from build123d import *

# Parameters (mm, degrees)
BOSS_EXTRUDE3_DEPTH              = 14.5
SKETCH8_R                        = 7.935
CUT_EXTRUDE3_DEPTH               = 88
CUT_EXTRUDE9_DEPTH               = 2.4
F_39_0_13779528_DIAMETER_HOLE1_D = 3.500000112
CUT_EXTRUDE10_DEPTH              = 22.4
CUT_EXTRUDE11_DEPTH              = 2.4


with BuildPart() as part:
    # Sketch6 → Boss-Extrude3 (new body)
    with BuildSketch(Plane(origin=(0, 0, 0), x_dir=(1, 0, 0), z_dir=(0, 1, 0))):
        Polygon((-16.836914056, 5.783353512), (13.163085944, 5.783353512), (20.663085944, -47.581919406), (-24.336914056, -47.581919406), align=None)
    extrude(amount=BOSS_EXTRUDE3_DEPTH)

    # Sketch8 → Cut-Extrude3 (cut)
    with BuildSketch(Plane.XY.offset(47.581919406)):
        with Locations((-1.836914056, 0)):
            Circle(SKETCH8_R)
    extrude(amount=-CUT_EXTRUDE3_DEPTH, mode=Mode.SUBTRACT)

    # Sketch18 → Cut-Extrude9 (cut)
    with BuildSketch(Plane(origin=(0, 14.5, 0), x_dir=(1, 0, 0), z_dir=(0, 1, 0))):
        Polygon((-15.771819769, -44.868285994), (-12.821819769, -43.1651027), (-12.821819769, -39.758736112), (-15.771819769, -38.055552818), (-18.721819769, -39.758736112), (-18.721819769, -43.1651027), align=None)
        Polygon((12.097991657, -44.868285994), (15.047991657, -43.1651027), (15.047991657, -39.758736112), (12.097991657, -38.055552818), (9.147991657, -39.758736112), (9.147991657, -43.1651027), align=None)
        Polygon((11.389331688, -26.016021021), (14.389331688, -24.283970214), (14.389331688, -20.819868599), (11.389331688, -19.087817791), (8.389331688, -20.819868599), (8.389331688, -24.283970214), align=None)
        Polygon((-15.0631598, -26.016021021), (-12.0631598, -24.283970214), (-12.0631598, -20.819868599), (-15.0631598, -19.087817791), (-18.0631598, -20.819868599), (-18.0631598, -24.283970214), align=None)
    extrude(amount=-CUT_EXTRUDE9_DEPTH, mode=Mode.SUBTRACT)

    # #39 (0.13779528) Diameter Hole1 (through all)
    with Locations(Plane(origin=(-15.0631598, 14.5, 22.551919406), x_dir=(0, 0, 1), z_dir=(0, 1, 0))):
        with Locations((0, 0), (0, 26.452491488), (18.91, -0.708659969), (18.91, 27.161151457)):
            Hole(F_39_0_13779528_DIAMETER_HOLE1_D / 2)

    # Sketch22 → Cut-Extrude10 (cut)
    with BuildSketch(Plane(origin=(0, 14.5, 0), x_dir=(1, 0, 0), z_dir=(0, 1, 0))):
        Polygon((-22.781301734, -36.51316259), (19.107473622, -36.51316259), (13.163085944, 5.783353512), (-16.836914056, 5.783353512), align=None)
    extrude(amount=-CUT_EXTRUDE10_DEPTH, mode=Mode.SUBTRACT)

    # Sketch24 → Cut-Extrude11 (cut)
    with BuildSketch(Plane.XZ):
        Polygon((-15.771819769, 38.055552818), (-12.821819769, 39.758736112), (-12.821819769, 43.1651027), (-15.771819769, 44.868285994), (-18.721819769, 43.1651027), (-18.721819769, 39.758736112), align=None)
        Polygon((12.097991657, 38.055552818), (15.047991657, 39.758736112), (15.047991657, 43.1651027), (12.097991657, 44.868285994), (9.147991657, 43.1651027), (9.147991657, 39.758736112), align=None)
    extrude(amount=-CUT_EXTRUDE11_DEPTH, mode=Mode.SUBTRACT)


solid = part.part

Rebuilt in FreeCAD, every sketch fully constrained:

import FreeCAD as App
import Part
import Sketcher

V = App.Vector
Q = App.Units.Quantity

doc = App.newDocument("Part")
body = doc.addObject("PartDesign::Body", "Body")

sketch1 = body.newObject("Sketcher::SketchObject", "Sketch")
sketch1.AttachmentSupport = (doc.getObject("XZ_Plane"), [""])
sketch1.MapMode = "FlatFace"
sketch1.addGeometry(Part.LineSegment(V(13, -6, 0), V(-17, -6, 0)), False)
sketch1.addGeometry(Part.LineSegment(V(-17, -6, 0), V(-24, 48, 0)), False)
sketch1.addGeometry(Part.LineSegment(V(-24, 48, 0), V(21, 48, 0)), False)
sketch1.addGeometry(Part.LineSegment(V(21, 48, 0), V(13, -6, 0)), False)
sketch1.addConstraint(Sketcher.Constraint("Coincident", 0, 2, 1, 1))
sketch1.addConstraint(Sketcher.Constraint("Coincident", 1, 2, 2, 1))
sketch1.addConstraint(Sketcher.Constraint("Coincident", 2, 2, 3, 1))
sketch1.addConstraint(Sketcher.Constraint("Coincident", 3, 2, 0, 1))
sketch1.addConstraint(Sketcher.Constraint("Horizontal", 0))
sketch1.addConstraint(Sketcher.Constraint("Horizontal", 2))
sketch1.addConstraint(Sketcher.Constraint("Equal", 1, 3))
sketch1.addConstraint(Sketcher.Constraint("DistanceX", 0, 2, 0, 1, Q("30 mm")))
sketch1.addConstraint(Sketcher.Constraint("DistanceX", 2, 1, 2, 2, Q("45 mm")))
sketch1.addConstraint(Sketcher.Constraint("Angle", 1, Q("98 deg")))
sketch1.addConstraint(Sketcher.Constraint("DistanceY", -1, 1, 1, 2, Q("47.581919 mm")))
sketch1.addConstraint(Sketcher.Constraint("DistanceX", 0, 2, -1, 1, Q("16.836914 mm")))
pad1 = body.newObject("PartDesign::Pad", "Pad")
pad1.Profile = sketch1
pad1.Length = 14.5
pad1.Reversed = True

sketch2 = body.newObject("Sketcher::SketchObject", "Sketch001")
sketch2.AttachmentSupport = (doc.getObject("XY_Plane"), [""])
sketch2.MapMode = "FlatFace"
sketch2.AttachmentOffset = App.Placement(V(0, 0, 47.581919), App.Rotation())
sketch2.addGeometry(Part.Circle(V(-2, 0, 0), V(0, 0, 1), 8), False)
sketch2.addConstraint(Sketcher.Constraint("PointOnObject", 0, 3, -1))
sketch2.addConstraint(Sketcher.Constraint("Diameter", 0, Q("15.87 mm")))
sketch2.addConstraint(Sketcher.Constraint("DistanceX", 0, 3, -1, 1, Q("1.836914 mm")))
pocket1 = body.newObject("PartDesign::Pocket", "Pocket")
pocket1.Profile = sketch2
pocket1.Length = 88

sketch3 = body.newObject("Sketcher::SketchObject", "Sketch002")
sketch3.AttachmentSupport = (doc.getObject("XZ_Plane"), [""])
sketch3.MapMode = "FlatFace"
sketch3.AttachmentOffset = App.Placement(V(0, 0, -14.5), App.Rotation())
sketch3.addGeometry(Part.LineSegment(V(-15.8, 44.9, 0), V(-12.8, 43.2, 0)), False)
sketch3.addGeometry(Part.LineSegment(V(-12.8, 43.2, 0), V(-12.8, 39.8, 0)), False)
sketch3.addGeometry(Part.LineSegment(V(-12.8, 39.8, 0), V(-15.8, 38.1, 0)), False)
sketch3.addGeometry(Part.LineSegment(V(-15.8, 38.1, 0), V(-18.7, 39.8, 0)), False)
sketch3.addGeometry(Part.LineSegment(V(-18.7, 39.8, 0), V(-18.7, 43.2, 0)), False)
sketch3.addGeometry(Part.LineSegment(V(-18.7, 43.2, 0), V(-15.8, 44.9, 0)), False)
sketch3.addGeometry(Part.LineSegment(V(12.1, 44.9, 0), V(15, 43.2, 0)), False)
sketch3.addGeometry(Part.LineSegment(V(15, 43.2, 0), V(15, 39.8, 0)), False)
sketch3.addGeometry(Part.LineSegment(V(15, 39.8, 0), V(12.1, 38.1, 0)), False)
sketch3.addGeometry(Part.LineSegment(V(12.1, 38.1, 0), V(9.1, 39.8, 0)), False)
sketch3.addGeometry(Part.LineSegment(V(9.1, 39.8, 0), V(9.1, 43.2, 0)), False)
sketch3.addGeometry(Part.LineSegment(V(9.1, 43.2, 0), V(12.1, 44.9, 0)), False)
sketch3.addGeometry(Part.LineSegment(V(11.4, 26, 0), V(14.4, 24.3, 0)), False)
sketch3.addGeometry(Part.LineSegment(V(14.4, 24.3, 0), V(14.4, 20.8, 0)), False)
sketch3.addGeometry(Part.LineSegment(V(14.4, 20.8, 0), V(11.4, 19.1, 0)), False)
sketch3.addGeometry(Part.LineSegment(V(11.4, 19.1, 0), V(8.4, 20.8, 0)), False)
sketch3.addGeometry(Part.LineSegment(V(8.4, 20.8, 0), V(8.4, 24.3, 0)), False)
sketch3.addGeometry(Part.LineSegment(V(8.4, 24.3, 0), V(11.4, 26, 0)), False)
sketch3.addGeometry(Part.LineSegment(V(-15.1, 26, 0), V(-12.1, 24.3, 0)), False)
sketch3.addGeometry(Part.LineSegment(V(-12.1, 24.3, 0), V(-12.1, 20.8, 0)), False)
sketch3.addGeometry(Part.LineSegment(V(-12.1, 20.8, 0), V(-15.1, 19.1, 0)), False)
sketch3.addGeometry(Part.LineSegment(V(-15.1, 19.1, 0), V(-18.1, 20.8, 0)), False)
sketch3.addGeometry(Part.LineSegment(V(-18.1, 20.8, 0), V(-18.1, 24.3, 0)), False)
sketch3.addGeometry(Part.LineSegment(V(-18.1, 24.3, 0), V(-15.1, 26, 0)), False)
sketch3.addConstraint(Sketcher.Constraint("Coincident", 0, 2, 1, 1))
sketch3.addConstraint(Sketcher.Constraint("Coincident", 1, 2, 2, 1))
sketch3.addConstraint(Sketcher.Constraint("Coincident", 2, 2, 3, 1))
sketch3.addConstraint(Sketcher.Constraint("Coincident", 3, 2, 4, 1))
sketch3.addConstraint(Sketcher.Constraint("Coincident", 4, 2, 5, 1))
sketch3.addConstraint(Sketcher.Constraint("Coincident", 5, 2, 0, 1))
sketch3.addConstraint(Sketcher.Constraint("Coincident", 6, 2, 7, 1))
sketch3.addConstraint(Sketcher.Constraint("Coincident", 7, 2, 8, 1))
sketch3.addConstraint(Sketcher.Constraint("Coincident", 8, 2, 9, 1))
sketch3.addConstraint(Sketcher.Constraint("Coincident", 9, 2, 10, 1))
sketch3.addConstraint(Sketcher.Constraint("Coincident", 10, 2, 11, 1))
sketch3.addConstraint(Sketcher.Constraint("Coincident", 11, 2, 6, 1))
sketch3.addConstraint(Sketcher.Constraint("Coincident", 12, 2, 13, 1))
sketch3.addConstraint(Sketcher.Constraint("Coincident", 13, 2, 14, 1))
sketch3.addConstraint(Sketcher.Constraint("Coincident", 14, 2, 15, 1))
sketch3.addConstraint(Sketcher.Constraint("Coincident", 15, 2, 16, 1))
sketch3.addConstraint(Sketcher.Constraint("Coincident", 16, 2, 17, 1))
sketch3.addConstraint(Sketcher.Constraint("Coincident", 17, 2, 12, 1))
sketch3.addConstraint(Sketcher.Constraint("Coincident", 18, 2, 19, 1))
sketch3.addConstraint(Sketcher.Constraint("Coincident", 19, 2, 20, 1))
sketch3.addConstraint(Sketcher.Constraint("Coincident", 20, 2, 21, 1))
sketch3.addConstraint(Sketcher.Constraint("Coincident", 21, 2, 22, 1))
sketch3.addConstraint(Sketcher.Constraint("Coincident", 22, 2, 23, 1))
sketch3.addConstraint(Sketcher.Constraint("Coincident", 23, 2, 18, 1))
sketch3.addConstraint(Sketcher.Constraint("Vertical", 1))
sketch3.addConstraint(Sketcher.Constraint("Vertical", 4))
sketch3.addConstraint(Sketcher.Constraint("Vertical", 7))
sketch3.addConstraint(Sketcher.Constraint("Vertical", 10))
sketch3.addConstraint(Sketcher.Constraint("Vertical", 13))
sketch3.addConstraint(Sketcher.Constraint("Vertical", 16))
sketch3.addConstraint(Sketcher.Constraint("Vertical", 19))
sketch3.addConstraint(Sketcher.Constraint("Vertical", 22))
sketch3.addConstraint(Sketcher.Constraint("Parallel", 0, 3))
sketch3.addConstraint(Sketcher.Constraint("Parallel", 2, 5))
sketch3.addConstraint(Sketcher.Constraint("Parallel", 3, 6))
sketch3.addConstraint(Sketcher.Constraint("Parallel", 5, 8))
sketch3.addConstraint(Sketcher.Constraint("Parallel", 6, 9))
sketch3.addConstraint(Sketcher.Constraint("Parallel", 8, 11))
sketch3.addConstraint(Sketcher.Constraint("Parallel", 9, 12))
sketch3.addConstraint(Sketcher.Constraint("Parallel", 11, 14))
sketch3.addConstraint(Sketcher.Constraint("Parallel", 12, 15))
sketch3.addConstraint(Sketcher.Constraint("Parallel", 14, 17))
sketch3.addConstraint(Sketcher.Constraint("Parallel", 15, 18))
sketch3.addConstraint(Sketcher.Constraint("Parallel", 17, 20))
sketch3.addConstraint(Sketcher.Constraint("Parallel", 18, 21))
sketch3.addConstraint(Sketcher.Constraint("Parallel", 20, 23))
sketch3.addConstraint(Sketcher.Constraint("Horizontal", 1, 2, 3, 2))
sketch3.addConstraint(Sketcher.Constraint("Horizontal", 0, 2, 4, 2))
sketch3.addConstraint(Sketcher.Constraint("Horizontal", 4, 2, 6, 2))
sketch3.addConstraint(Sketcher.Constraint("Horizontal", 3, 2, 7, 2))
sketch3.addConstraint(Sketcher.Constraint("Horizontal", 2, 2, 8, 2))
sketch3.addConstraint(Sketcher.Constraint("Horizontal", 7, 2, 9, 2))
sketch3.addConstraint(Sketcher.Constraint("Horizontal", 6, 2, 10, 2))
sketch3.addConstraint(Sketcher.Constraint("Horizontal", 13, 2, 15, 2))
sketch3.addConstraint(Sketcher.Constraint("Horizontal", 12, 2, 16, 2))
sketch3.addConstraint(Sketcher.Constraint("Horizontal", 16, 2, 18, 2))
sketch3.addConstraint(Sketcher.Constraint("Horizontal", 15, 2, 19, 2))
sketch3.addConstraint(Sketcher.Constraint("Horizontal", 14, 2, 20, 2))
sketch3.addConstraint(Sketcher.Constraint("Horizontal", 19, 2, 21, 2))
sketch3.addConstraint(Sketcher.Constraint("Horizontal", 18, 2, 22, 2))
sketch3.addConstraint(Sketcher.Constraint("Vertical", 2, 2, 5, 2))
sketch3.addConstraint(Sketcher.Constraint("Angle", 0, Q("-30 deg")))
sketch3.addConstraint(Sketcher.Constraint("DistanceX", 14, 2, 13, 2, Q("3 mm")))
sketch3.addConstraint(Sketcher.Constraint("DistanceX", 3, 2, 1, 2, Q("5.9 mm")))
sketch3.addConstraint(Sketcher.Constraint("DistanceY", 13, 2, 13, 1, Q("3.464102 mm")))
sketch3.addConstraint(Sketcher.Constraint("DistanceY", 1, 2, 1, 1, Q("3.406367 mm")))
sketch3.addConstraint(Sketcher.Constraint("DistanceX", 0, 2, -1, 1, Q("12.82182 mm")))
sketch3.addConstraint(Sketcher.Constraint("DistanceX", -1, 1, 6, 2, Q("15.047992 mm")))
sketch3.addConstraint(Sketcher.Constraint("DistanceX", -1, 1, 12, 2, Q("14.389332 mm")))
sketch3.addConstraint(Sketcher.Constraint("DistanceY", -1, 1, 12, 2, Q("24.28397 mm")))
sketch3.addConstraint(Sketcher.Constraint("DistanceX", 18, 2, -1, 1, Q("12.06316 mm")))
sketch3.addConstraint(Sketcher.Constraint("DistanceY", 14, 2, 9, 2, Q("20.670918 mm")))
pocket2 = body.newObject("PartDesign::Pocket", "Pocket001")
pocket2.Profile = sketch3
pocket2.Length = 2.4
pocket2.Reversed = True

sketch4 = body.newObject("Sketcher::SketchObject", "Sketch003")
sketch4.AttachmentSupport = (doc.getObject("XZ_Plane"), [""])
sketch4.MapMode = "FlatFace"
sketch4.AttachmentOffset = App.Placement(V(0, 0, -14.5), App.Rotation())
sketch4.addGeometry(Part.Circle(V(-15.1, 22.6, 0), V(0, 0, 1), 1.8), False)
sketch4.addGeometry(Part.Circle(V(11.4, 22.6, 0), V(0, 0, 1), 1.8), False)
sketch4.addGeometry(Part.Circle(V(-15.8, 41.5, 0), V(0, 0, 1), 1.8), False)
sketch4.addGeometry(Part.Circle(V(12.1, 41.5, 0), V(0, 0, 1), 1.8), False)
sketch4.addConstraint(Sketcher.Constraint("Equal", 0, 1))
sketch4.addConstraint(Sketcher.Constraint("Equal", 1, 2))
sketch4.addConstraint(Sketcher.Constraint("Equal", 2, 3))
sketch4.addConstraint(Sketcher.Constraint("Horizontal", 0, 3, 1, 3))
sketch4.addConstraint(Sketcher.Constraint("Horizontal", 2, 3, 3, 3))
sketch4.addConstraint(Sketcher.Constraint("Diameter", 0, Q("3.5 mm")))
sketch4.addConstraint(Sketcher.Constraint("DistanceY", 0, 3, 2, 3, Q("18.91 mm")))
sketch4.addConstraint(Sketcher.Constraint("DistanceX", 0, 3, -1, 1, Q("15.06316 mm")))
sketch4.addConstraint(Sketcher.Constraint("DistanceY", -1, 1, 0, 3, Q("22.551919 mm")))
sketch4.addConstraint(Sketcher.Constraint("DistanceX", -1, 1, 1, 3, Q("11.389332 mm")))
sketch4.addConstraint(Sketcher.Constraint("DistanceX", 2, 3, -1, 1, Q("15.77182 mm")))
sketch4.addConstraint(Sketcher.Constraint("DistanceX", -1, 1, 3, 3, Q("12.097992 mm")))
doc.recompute()
hole = body.newObject("PartDesign::Hole", "Hole")
hole.Profile = sketch4
hole.ThreadType = "None"
hole.Diameter = 3.5
hole.DepthType = "ThroughAll"
hole.Reversed = True

sketch5 = body.newObject("Sketcher::SketchObject", "Sketch004")
sketch5.AttachmentSupport = (doc.getObject("XZ_Plane"), [""])
sketch5.MapMode = "FlatFace"
sketch5.AttachmentOffset = App.Placement(V(0, 0, -14.5), App.Rotation())
sketch5.addGeometry(Part.LineSegment(V(-23, 37, 0), V(19, 37, 0)), False)
sketch5.addGeometry(Part.LineSegment(V(19, 37, 0), V(13, -6, 0)), False)
sketch5.addGeometry(Part.LineSegment(V(13, -6, 0), V(-17, -6, 0)), False)
sketch5.addGeometry(Part.LineSegment(V(-17, -6, 0), V(-23, 37, 0)), False)
sketch5.addConstraint(Sketcher.Constraint("Coincident", 0, 2, 1, 1))
sketch5.addConstraint(Sketcher.Constraint("Coincident", 1, 2, 2, 1))
sketch5.addConstraint(Sketcher.Constraint("Coincident", 2, 2, 3, 1))
sketch5.addConstraint(Sketcher.Constraint("Coincident", 3, 2, 0, 1))
sketch5.addConstraint(Sketcher.Constraint("Horizontal", 0))
sketch5.addConstraint(Sketcher.Constraint("Horizontal", 2))
sketch5.addConstraint(Sketcher.Constraint("Equal", 1, 3))
sketch5.addConstraint(Sketcher.Constraint("DistanceX", 2, 2, 2, 1, Q("30 mm")))
sketch5.addConstraint(Sketcher.Constraint("Angle", 1, Q("-98 deg")))
sketch5.addConstraint(Sketcher.Constraint("DistanceX", 3, 2, -1, 1, Q("22.781302 mm")))
sketch5.addConstraint(Sketcher.Constraint("Distance", 1, Q("42.712188 mm")))
sketch5.addConstraint(Sketcher.Constraint("DistanceY", -1, 1, 0, 2, Q("36.513163 mm")))
pocket3 = body.newObject("PartDesign::Pocket", "Pocket002")
pocket3.Profile = sketch5
pocket3.Length = 22.4
pocket3.Reversed = True

sketch6 = body.newObject("Sketcher::SketchObject", "Sketch005")
sketch6.AttachmentSupport = (doc.getObject("XZ_Plane"), [""])
sketch6.MapMode = "FlatFace"
sketch6.addGeometry(Part.LineSegment(V(-15.8, 38.1, 0), V(-12.8, 39.8, 0)), False)
sketch6.addGeometry(Part.LineSegment(V(-12.8, 39.8, 0), V(-12.8, 43.2, 0)), False)
sketch6.addGeometry(Part.LineSegment(V(-12.8, 43.2, 0), V(-15.8, 44.9, 0)), False)
sketch6.addGeometry(Part.LineSegment(V(-15.8, 44.9, 0), V(-18.7, 43.2, 0)), False)
sketch6.addGeometry(Part.LineSegment(V(-18.7, 43.2, 0), V(-18.7, 39.8, 0)), False)
sketch6.addGeometry(Part.LineSegment(V(-18.7, 39.8, 0), V(-15.8, 38.1, 0)), False)
sketch6.addGeometry(Part.LineSegment(V(12.1, 38.1, 0), V(15, 39.8, 0)), False)
sketch6.addGeometry(Part.LineSegment(V(15, 39.8, 0), V(15, 43.2, 0)), False)
sketch6.addGeometry(Part.LineSegment(V(15, 43.2, 0), V(12.1, 44.9, 0)), False)
sketch6.addGeometry(Part.LineSegment(V(12.1, 44.9, 0), V(9.1, 43.2, 0)), False)
sketch6.addGeometry(Part.LineSegment(V(9.1, 43.2, 0), V(9.1, 39.8, 0)), False)
sketch6.addGeometry(Part.LineSegment(V(9.1, 39.8, 0), V(12.1, 38.1, 0)), False)
sketch6.addConstraint(Sketcher.Constraint("Coincident", 0, 2, 1, 1))
sketch6.addConstraint(Sketcher.Constraint("Coincident", 1, 2, 2, 1))
sketch6.addConstraint(Sketcher.Constraint("Coincident", 2, 2, 3, 1))
sketch6.addConstraint(Sketcher.Constraint("Coincident", 3, 2, 4, 1))
sketch6.addConstraint(Sketcher.Constraint("Coincident", 4, 2, 5, 1))
sketch6.addConstraint(Sketcher.Constraint("Coincident", 5, 2, 0, 1))
sketch6.addConstraint(Sketcher.Constraint("Coincident", 6, 2, 7, 1))
sketch6.addConstraint(Sketcher.Constraint("Coincident", 7, 2, 8, 1))
sketch6.addConstraint(Sketcher.Constraint("Coincident", 8, 2, 9, 1))
sketch6.addConstraint(Sketcher.Constraint("Coincident", 9, 2, 10, 1))
sketch6.addConstraint(Sketcher.Constraint("Coincident", 10, 2, 11, 1))
sketch6.addConstraint(Sketcher.Constraint("Coincident", 11, 2, 6, 1))
sketch6.addConstraint(Sketcher.Constraint("Vertical", 1))
sketch6.addConstraint(Sketcher.Constraint("Vertical", 4))
sketch6.addConstraint(Sketcher.Constraint("Vertical", 7))
sketch6.addConstraint(Sketcher.Constraint("Vertical", 10))
sketch6.addConstraint(Sketcher.Constraint("Parallel", 0, 3))
sketch6.addConstraint(Sketcher.Constraint("Parallel", 2, 5))
sketch6.addConstraint(Sketcher.Constraint("Parallel", 3, 6))
sketch6.addConstraint(Sketcher.Constraint("Parallel", 5, 8))
sketch6.addConstraint(Sketcher.Constraint("Parallel", 6, 9))
sketch6.addConstraint(Sketcher.Constraint("Parallel", 8, 11))
sketch6.addConstraint(Sketcher.Constraint("Horizontal", 1, 2, 3, 2))
sketch6.addConstraint(Sketcher.Constraint("Horizontal", 0, 2, 4, 2))
sketch6.addConstraint(Sketcher.Constraint("Horizontal", 4, 2, 6, 2))
sketch6.addConstraint(Sketcher.Constraint("Horizontal", 3, 2, 7, 2))
sketch6.addConstraint(Sketcher.Constraint("Horizontal", 2, 2, 8, 2))
sketch6.addConstraint(Sketcher.Constraint("Horizontal", 7, 2, 9, 2))
sketch6.addConstraint(Sketcher.Constraint("Horizontal", 6, 2, 10, 2))
sketch6.addConstraint(Sketcher.Constraint("Vertical", 2, 2, 5, 2))
sketch6.addConstraint(Sketcher.Constraint("Angle", 0, Q("30 deg")))
sketch6.addConstraint(Sketcher.Constraint("DistanceX", 3, 2, 1, 2, Q("5.9 mm")))
sketch6.addConstraint(Sketcher.Constraint("DistanceY", 1, 1, 1, 2, Q("3.406367 mm")))
sketch6.addConstraint(Sketcher.Constraint("DistanceX", 0, 2, -1, 1, Q("12.82182 mm")))
sketch6.addConstraint(Sketcher.Constraint("DistanceX", -1, 1, 6, 2, Q("15.047992 mm")))
sketch6.addConstraint(Sketcher.Constraint("DistanceY", -1, 1, 0, 2, Q("39.758736 mm")))
pocket4 = body.newObject("PartDesign::Pocket", "Pocket003")
pocket4.Profile = sketch6
pocket4.Length = 2.4

doc.recompute()
